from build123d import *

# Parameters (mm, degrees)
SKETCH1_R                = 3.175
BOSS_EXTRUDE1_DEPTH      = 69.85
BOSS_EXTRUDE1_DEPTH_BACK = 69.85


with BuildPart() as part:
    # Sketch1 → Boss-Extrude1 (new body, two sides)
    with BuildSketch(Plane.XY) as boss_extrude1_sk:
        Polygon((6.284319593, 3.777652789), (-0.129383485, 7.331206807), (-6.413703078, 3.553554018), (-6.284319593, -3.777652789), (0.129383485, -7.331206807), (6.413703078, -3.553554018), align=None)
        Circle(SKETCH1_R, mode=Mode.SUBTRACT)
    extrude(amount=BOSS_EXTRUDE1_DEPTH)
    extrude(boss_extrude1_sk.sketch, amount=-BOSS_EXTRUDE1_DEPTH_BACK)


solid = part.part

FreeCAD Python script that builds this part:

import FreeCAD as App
import Part
import Sketcher
from FreeCAD import Vector
Q = App.Units.Quantity

doc = App.newDocument("Part")
params = doc.addObject("Spreadsheet::Sheet", "Params")
for row, (alias, value) in enumerate([
    ("sketch1_diameter", "0.25 in"),
    ("pad1_length", "2.75 in"),
    ("pad1_length2", "2.75 in"),
], start=1):
    params.set(f"A{row}", alias)
    params.set(f"B{row}", "=" + value)
    params.setAlias(f"B{row}", alias)

body = doc.addObject("PartDesign::Body", "Body")

# Sketch on XY plane
sketch1 = doc.addObject("Sketcher::SketchObject", "Sketch")
body.addObject(sketch1)
sketch1.AttachmentSupport = (doc.XY_Plane, [""])
sketch1.MapMode = "FlatFace"
sketch1.addGeometry(Part.LineSegment(Vector(6.28432, 3.777653, 0), Vector(-0.129383, 7.331207, 0)), False)
sketch1.addGeometry(Part.LineSegment(Vector(-0.129383, 7.331207, 0), Vector(-6.413703, 3.553554, 0)), False)
sketch1.addGeometry(Part.LineSegment(Vector(-6.413703, 3.553554, 0), Vector(-6.28432, -3.777653, 0)), False)
sketch1.addGeometry(Part.LineSegment(Vector(-6.28432, -3.777653, 0), Vector(0.129383, -7.331207, 0)), False)
sketch1.addGeometry(Part.LineSegment(Vector(0.129383, -7.331207, 0), Vector(6.413703, -3.553554, 0)), False)
sketch1.addGeometry(Part.LineSegment(Vector(6.413703, -3.553554, 0), Vector(6.28432, 3.777653, 0)), False)
sketch1.addGeometry(Part.Circle(Vector(0, 0, 0), Vector(0, 0, 1), 3.175), False)
sketch1.addConstraint(Sketcher.Constraint("Coincident", 0, 2, 1, 1))
sketch1.addConstraint(Sketcher.Constraint("Coincident", 1, 2, 2, 1))
sketch1.addConstraint(Sketcher.Constraint("Coincident", 2, 2, 3, 1))
sketch1.addConstraint(Sketcher.Constraint("Coincident", 3, 2, 4, 1))
sketch1.addConstraint(Sketcher.Constraint("Coincident", 4, 2, 5, 1))
sketch1.addConstraint(Sketcher.Constraint("Coincident", 5, 2, 0, 1))
sketch1.addConstraint(Sketcher.Constraint("Coincident", 6, 3, -1, 1))
sketch1.addConstraint(Sketcher.Constraint("Symmetric", 0, 2, 3, 2, -1, 1))
sketch1.addConstraint(Sketcher.Constraint("Symmetric", 1, 2, 4, 2, -1, 1))
sketch1.addConstraint(Sketcher.Constraint("Symmetric", 2, 2, 5, 2, -1, 1))
sketch1.addConstraint(Sketcher.Constraint("Equal", 0, 1))
sketch1.addConstraint(Sketcher.Constraint("Equal", 1, 2))
sketch1.addConstraint(Sketcher.Constraint("Diameter", 6, Q("0.25 in")))
sketch1.addConstraint(Sketcher.Constraint("DistanceY", 2, 2, 4, 2, Q("0.224099 mm")))
sketch1.addConstraint(Sketcher.Constraint("Distance", 0, Q("7.332348 mm")))
sketch1.addConstraint(Sketcher.Constraint("DistanceX", 2, 2, -1, 1, Q("6.28432 mm")))
sketch1.addConstraint(Sketcher.Constraint("DistanceX", 1, 2, 0, 2, Q("6.28432 mm")))
sketch1.setExpression("Constraints[12]", "Params.sketch1_diameter")
pad1 = doc.addObject("PartDesign::Pad", "Pad")
body.addObject(pad1)
pad1.Profile = sketch1
pad1.Type = "TwoLengths"
pad1.setExpression("Length", "Params.pad1_length")
pad1.setExpression("Length2", "Params.pad1_length2")

doc.recompute()
